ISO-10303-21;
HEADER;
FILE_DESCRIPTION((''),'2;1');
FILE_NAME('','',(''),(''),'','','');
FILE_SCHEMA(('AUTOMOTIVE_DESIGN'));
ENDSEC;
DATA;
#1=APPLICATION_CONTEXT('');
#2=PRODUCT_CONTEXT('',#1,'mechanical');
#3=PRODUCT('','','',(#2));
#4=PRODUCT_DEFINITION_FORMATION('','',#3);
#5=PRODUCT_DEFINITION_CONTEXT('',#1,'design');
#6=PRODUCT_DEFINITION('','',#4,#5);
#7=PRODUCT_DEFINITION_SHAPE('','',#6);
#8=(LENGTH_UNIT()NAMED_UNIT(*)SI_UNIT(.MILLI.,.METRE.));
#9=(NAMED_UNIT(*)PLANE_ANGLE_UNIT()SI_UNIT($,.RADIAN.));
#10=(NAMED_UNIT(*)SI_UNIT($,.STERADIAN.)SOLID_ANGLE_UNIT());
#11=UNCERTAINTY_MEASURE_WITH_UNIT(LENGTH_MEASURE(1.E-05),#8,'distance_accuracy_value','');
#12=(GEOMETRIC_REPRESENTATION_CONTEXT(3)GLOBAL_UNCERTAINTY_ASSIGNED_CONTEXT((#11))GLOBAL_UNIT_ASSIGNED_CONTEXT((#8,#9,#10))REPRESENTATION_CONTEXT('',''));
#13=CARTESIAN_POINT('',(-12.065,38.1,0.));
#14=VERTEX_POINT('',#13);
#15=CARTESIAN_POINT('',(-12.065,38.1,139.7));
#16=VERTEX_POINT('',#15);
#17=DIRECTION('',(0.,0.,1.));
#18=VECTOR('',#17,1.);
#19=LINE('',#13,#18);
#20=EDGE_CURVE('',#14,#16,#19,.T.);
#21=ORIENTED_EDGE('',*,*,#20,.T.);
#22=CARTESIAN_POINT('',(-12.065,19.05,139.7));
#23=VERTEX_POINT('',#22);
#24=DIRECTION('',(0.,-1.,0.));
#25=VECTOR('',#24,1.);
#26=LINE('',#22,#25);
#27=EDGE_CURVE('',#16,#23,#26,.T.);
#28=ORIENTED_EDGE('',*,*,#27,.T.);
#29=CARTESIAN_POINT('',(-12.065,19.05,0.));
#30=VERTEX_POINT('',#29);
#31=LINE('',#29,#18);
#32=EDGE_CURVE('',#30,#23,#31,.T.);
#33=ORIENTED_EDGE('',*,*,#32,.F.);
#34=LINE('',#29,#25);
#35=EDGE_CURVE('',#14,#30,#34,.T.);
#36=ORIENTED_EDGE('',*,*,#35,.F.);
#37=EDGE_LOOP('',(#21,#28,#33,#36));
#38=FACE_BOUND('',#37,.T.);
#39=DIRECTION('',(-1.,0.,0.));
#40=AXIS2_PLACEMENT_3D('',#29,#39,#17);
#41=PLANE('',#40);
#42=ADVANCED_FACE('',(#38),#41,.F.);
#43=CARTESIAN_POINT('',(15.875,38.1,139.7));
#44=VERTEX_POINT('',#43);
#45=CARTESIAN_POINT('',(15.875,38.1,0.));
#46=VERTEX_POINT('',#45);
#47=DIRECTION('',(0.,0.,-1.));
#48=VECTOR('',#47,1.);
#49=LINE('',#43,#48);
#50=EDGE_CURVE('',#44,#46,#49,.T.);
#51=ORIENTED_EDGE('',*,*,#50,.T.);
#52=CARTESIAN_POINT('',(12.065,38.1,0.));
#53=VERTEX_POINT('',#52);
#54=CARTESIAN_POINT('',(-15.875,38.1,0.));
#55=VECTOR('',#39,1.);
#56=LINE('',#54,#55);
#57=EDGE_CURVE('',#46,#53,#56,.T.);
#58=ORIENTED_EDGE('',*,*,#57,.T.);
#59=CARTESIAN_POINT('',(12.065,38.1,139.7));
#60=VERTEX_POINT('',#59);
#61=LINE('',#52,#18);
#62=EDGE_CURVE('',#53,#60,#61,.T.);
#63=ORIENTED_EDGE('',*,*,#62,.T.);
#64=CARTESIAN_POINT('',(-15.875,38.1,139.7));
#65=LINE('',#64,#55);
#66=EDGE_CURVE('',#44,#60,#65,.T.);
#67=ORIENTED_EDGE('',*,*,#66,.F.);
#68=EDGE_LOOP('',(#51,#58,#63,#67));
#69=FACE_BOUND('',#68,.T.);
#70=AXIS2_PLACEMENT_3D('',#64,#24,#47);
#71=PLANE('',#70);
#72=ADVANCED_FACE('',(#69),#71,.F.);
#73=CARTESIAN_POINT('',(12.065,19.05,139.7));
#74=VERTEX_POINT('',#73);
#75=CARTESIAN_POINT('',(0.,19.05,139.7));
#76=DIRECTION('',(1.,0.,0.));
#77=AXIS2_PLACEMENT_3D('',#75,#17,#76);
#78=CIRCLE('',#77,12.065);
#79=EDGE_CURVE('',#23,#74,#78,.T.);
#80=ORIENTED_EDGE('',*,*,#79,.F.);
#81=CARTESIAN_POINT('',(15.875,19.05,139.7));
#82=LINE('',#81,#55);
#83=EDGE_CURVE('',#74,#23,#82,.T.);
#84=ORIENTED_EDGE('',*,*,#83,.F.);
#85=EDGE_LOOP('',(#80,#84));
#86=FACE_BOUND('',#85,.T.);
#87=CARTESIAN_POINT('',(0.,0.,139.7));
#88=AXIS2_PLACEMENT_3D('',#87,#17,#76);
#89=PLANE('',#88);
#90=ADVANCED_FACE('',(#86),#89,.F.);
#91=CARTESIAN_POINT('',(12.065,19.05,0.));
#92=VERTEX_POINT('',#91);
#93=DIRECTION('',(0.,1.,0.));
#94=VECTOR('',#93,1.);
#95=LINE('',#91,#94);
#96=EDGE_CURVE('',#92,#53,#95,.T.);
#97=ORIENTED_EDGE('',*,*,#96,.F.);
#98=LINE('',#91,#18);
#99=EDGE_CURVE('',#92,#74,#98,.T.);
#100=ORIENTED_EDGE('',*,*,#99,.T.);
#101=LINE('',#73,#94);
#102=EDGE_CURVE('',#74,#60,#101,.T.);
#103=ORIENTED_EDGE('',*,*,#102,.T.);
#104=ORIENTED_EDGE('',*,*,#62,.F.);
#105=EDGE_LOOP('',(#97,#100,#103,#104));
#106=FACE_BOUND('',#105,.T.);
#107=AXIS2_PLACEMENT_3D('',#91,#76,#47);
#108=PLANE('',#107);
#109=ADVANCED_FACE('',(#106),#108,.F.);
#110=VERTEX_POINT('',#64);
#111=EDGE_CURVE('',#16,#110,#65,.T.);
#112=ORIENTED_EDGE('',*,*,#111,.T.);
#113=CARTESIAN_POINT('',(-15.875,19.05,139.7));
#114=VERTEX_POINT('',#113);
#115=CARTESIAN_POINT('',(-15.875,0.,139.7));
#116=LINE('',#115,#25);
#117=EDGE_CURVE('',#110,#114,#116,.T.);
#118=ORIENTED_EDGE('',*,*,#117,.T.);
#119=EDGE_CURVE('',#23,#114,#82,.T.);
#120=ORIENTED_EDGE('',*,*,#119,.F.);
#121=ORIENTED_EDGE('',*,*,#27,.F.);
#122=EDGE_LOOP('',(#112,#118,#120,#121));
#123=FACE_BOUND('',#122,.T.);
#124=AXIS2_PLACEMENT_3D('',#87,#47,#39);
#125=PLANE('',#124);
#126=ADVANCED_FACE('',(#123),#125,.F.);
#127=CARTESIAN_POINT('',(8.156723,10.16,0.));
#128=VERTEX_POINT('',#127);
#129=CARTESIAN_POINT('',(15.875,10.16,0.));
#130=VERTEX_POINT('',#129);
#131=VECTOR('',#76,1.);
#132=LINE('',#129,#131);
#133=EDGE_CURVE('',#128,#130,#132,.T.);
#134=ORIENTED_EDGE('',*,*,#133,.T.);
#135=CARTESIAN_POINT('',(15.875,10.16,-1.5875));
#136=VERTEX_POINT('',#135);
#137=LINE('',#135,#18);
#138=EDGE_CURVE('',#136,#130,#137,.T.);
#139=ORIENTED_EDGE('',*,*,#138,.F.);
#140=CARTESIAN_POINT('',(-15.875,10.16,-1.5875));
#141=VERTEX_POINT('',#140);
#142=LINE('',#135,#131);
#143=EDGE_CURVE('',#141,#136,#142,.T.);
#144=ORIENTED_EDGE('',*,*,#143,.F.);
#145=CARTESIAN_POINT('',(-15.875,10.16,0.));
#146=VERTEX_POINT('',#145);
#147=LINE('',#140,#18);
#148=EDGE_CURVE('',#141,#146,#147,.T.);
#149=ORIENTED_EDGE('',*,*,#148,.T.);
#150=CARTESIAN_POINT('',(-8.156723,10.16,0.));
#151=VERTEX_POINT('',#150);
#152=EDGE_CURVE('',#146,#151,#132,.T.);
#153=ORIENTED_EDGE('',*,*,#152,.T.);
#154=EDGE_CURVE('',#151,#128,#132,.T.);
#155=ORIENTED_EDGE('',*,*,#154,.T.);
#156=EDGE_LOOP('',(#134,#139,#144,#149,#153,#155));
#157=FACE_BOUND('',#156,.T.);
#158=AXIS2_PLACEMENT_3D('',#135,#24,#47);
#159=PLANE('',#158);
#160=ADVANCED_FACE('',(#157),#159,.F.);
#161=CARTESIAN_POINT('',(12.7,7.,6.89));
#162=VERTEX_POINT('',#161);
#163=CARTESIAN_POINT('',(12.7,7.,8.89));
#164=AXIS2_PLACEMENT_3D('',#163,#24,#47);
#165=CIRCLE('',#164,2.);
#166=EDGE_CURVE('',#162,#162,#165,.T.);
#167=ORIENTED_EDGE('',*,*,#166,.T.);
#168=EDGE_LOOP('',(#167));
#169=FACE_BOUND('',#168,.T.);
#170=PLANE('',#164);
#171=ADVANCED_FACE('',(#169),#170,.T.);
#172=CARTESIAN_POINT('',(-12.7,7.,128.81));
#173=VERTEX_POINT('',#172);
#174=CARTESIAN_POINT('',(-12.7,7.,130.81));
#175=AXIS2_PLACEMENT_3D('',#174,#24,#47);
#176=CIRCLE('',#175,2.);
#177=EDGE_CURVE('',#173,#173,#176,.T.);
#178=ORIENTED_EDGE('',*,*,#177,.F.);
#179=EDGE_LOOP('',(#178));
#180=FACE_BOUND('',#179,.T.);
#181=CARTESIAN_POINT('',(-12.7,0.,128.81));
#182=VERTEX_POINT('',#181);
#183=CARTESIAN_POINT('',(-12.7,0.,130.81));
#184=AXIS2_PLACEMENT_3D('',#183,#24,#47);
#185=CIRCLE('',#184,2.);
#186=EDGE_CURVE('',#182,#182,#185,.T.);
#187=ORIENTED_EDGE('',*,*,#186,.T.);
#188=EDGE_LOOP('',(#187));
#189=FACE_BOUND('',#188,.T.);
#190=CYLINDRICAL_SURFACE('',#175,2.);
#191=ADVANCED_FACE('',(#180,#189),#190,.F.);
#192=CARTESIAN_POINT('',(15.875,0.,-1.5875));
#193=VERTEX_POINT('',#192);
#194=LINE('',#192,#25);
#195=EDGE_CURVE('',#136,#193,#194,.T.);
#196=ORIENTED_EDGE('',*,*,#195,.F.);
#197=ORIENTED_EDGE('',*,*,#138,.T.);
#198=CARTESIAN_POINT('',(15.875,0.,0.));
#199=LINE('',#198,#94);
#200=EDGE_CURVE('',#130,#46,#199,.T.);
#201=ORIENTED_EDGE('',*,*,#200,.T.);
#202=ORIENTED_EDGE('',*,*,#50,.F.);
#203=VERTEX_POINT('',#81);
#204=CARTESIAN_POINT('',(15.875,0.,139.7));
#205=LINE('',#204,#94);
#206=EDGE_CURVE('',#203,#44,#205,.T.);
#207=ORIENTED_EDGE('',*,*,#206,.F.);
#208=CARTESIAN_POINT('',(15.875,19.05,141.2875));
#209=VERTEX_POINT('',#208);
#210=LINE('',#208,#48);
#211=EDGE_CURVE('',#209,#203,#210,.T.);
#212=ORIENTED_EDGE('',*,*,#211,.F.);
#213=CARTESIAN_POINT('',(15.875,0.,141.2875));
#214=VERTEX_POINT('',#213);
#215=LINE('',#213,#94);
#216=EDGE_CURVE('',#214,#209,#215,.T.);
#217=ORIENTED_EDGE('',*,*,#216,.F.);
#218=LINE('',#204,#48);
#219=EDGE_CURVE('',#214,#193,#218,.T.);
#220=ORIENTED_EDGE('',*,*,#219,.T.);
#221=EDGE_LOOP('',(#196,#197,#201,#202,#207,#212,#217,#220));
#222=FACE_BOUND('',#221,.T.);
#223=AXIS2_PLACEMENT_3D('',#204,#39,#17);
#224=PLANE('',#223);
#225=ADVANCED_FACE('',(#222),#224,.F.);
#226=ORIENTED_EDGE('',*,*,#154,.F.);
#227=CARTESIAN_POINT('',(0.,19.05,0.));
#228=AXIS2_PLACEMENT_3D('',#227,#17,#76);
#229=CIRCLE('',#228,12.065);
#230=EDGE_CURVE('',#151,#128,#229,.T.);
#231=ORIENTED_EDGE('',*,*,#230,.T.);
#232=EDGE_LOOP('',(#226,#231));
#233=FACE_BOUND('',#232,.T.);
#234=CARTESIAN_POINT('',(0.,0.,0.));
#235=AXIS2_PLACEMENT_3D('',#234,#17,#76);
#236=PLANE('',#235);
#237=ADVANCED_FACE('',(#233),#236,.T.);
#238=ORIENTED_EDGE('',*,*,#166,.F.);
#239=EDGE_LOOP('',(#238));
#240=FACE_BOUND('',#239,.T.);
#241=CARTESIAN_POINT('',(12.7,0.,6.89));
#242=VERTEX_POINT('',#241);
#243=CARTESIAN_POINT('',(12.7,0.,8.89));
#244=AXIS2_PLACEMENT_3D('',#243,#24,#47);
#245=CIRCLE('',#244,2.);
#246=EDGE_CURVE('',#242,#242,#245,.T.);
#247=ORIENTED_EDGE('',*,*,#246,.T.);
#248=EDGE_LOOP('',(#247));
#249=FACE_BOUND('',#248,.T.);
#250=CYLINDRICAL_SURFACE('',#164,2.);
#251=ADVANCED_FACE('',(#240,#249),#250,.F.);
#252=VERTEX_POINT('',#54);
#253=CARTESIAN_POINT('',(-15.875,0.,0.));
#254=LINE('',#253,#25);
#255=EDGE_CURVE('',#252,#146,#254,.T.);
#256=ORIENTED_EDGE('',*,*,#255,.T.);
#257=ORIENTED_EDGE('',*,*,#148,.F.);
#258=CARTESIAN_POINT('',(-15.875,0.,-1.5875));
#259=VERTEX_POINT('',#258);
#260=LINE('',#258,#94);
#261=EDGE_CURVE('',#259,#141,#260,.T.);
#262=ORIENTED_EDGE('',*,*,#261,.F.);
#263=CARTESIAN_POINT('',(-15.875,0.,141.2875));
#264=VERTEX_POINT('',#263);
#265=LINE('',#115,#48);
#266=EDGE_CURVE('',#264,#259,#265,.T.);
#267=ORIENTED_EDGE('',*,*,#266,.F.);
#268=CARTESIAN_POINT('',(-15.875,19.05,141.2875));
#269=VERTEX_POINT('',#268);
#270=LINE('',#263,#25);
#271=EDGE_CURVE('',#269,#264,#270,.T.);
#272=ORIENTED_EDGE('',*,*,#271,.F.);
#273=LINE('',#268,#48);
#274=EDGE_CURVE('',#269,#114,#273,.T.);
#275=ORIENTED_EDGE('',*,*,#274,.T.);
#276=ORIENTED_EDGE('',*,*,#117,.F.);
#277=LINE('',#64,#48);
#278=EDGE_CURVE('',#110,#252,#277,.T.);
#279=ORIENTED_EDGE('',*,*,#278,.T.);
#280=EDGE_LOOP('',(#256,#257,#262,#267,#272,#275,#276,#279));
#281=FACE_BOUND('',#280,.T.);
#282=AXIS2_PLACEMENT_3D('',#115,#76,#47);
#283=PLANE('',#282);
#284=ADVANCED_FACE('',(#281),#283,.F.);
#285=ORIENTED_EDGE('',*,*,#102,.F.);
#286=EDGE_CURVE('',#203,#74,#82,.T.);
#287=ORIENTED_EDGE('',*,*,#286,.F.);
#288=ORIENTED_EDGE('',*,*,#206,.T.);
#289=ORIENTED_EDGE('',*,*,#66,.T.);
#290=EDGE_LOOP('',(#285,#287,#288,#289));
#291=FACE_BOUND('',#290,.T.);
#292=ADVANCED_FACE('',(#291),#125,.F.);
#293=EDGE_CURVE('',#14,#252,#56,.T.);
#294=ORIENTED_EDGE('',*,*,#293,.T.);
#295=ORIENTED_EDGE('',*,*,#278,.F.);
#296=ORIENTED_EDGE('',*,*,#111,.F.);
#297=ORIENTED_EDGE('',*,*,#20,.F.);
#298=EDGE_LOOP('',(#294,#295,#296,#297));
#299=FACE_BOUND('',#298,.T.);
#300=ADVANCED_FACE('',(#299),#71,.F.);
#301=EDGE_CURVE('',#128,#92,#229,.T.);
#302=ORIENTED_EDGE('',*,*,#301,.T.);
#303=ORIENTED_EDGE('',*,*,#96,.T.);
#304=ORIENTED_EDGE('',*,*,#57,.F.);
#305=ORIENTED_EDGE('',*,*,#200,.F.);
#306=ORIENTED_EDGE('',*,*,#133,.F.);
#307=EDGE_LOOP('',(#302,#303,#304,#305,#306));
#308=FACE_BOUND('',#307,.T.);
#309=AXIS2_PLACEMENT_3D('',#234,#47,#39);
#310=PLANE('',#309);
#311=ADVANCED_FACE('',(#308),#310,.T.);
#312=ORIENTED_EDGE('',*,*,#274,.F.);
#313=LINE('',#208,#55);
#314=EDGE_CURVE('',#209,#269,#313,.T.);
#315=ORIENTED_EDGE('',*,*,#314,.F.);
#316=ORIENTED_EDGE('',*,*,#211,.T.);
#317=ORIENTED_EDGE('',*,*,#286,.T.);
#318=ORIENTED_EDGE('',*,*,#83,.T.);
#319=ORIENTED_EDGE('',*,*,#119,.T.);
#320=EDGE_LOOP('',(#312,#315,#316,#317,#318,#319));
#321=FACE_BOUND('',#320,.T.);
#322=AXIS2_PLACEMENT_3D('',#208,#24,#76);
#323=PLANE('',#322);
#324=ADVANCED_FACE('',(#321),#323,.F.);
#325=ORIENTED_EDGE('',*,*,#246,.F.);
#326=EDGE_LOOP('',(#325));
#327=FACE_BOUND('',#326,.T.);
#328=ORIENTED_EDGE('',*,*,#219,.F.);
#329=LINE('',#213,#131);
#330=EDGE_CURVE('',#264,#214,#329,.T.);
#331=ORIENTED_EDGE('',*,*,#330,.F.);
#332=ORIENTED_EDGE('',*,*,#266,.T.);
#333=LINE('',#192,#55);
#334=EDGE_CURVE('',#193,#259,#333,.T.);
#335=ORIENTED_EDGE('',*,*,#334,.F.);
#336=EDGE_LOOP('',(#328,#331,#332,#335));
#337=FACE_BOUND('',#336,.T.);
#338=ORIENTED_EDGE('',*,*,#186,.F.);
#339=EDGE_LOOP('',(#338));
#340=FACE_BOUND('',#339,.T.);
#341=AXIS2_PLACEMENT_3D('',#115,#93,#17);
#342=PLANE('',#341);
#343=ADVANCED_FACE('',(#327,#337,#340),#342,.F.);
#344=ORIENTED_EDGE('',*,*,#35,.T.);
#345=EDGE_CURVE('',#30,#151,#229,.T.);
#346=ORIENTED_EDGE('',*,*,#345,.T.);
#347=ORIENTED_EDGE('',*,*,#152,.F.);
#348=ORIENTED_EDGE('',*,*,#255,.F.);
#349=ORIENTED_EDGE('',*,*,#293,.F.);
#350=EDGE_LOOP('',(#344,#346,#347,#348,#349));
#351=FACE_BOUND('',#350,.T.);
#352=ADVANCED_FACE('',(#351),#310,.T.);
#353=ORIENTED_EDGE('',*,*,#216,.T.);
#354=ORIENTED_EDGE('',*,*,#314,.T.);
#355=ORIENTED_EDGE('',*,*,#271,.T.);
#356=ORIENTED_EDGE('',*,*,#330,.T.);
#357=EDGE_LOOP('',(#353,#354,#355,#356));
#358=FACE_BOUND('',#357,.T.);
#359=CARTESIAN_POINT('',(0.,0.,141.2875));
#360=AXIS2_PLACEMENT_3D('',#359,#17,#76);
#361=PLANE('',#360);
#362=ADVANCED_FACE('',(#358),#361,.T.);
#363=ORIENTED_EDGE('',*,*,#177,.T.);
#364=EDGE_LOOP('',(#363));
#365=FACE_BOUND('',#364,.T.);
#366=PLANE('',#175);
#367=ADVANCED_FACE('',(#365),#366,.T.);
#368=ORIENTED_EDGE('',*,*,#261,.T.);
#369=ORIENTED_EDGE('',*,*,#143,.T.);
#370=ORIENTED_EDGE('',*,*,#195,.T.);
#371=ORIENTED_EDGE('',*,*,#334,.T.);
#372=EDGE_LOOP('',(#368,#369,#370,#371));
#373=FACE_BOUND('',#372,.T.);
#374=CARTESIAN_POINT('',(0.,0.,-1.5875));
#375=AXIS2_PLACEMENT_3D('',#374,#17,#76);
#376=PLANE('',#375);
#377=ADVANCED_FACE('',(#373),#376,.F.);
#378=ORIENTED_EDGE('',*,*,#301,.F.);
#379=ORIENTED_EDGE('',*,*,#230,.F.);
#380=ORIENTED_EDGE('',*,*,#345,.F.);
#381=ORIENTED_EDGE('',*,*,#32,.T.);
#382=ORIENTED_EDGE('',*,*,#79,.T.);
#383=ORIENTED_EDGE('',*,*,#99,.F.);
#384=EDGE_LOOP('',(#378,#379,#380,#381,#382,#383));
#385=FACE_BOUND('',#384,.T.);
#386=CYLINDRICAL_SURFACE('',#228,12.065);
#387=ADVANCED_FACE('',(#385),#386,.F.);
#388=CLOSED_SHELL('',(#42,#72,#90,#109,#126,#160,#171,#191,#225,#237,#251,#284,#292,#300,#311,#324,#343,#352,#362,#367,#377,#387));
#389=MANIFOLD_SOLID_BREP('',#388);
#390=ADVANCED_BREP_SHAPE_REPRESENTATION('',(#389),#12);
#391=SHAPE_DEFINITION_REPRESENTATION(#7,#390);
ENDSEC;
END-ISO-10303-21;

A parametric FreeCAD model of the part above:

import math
import FreeCAD as App
import Part
import Sketcher
Q = App.Units.Quantity

doc = App.newDocument("Part")
params = doc.addObject("Spreadsheet::Sheet", "Params")
for row, (alias, value) in enumerate([
    ("sketch1_height", "1.5 in"),
    ("sketch1_width", "1.25 in"),
    ("pad1_length", "5.5 in"),
    ("sketch2_radius", "0.475 in"),
    ("sketch2_height", "0.75 in"),
    ("pocket2_length", "7 mm"),
    ("sketch4_width", "1.25 in"),
    ("sketch4_height", "0.75 in"),
    ("pad2_length", "0.0625 in"),
    ("sketch5_height", "0.4 in"),
    ("sketch5_width", "1.25 in"),
    ("pad3_length", "0.0625 in"),
], start=1):
    params.set(f"A{row}", alias)
    params.set(f"B{row}", "=" + value)
    params.setAlias(f"B{row}", alias)

body = doc.addObject("PartDesign::Body", "Body")

sketch1 = body.newObject("Sketcher::SketchObject", "Sketch")
sketch1.AttachmentSupport = (doc.getObject("XY_Plane"), [""])
sketch1.MapMode = "FlatFace"
sketch1.addGeometry(Part.LineSegment(App.Vector(-16, 38, 0), App.Vector(-16, 0, 0)), False)
sketch1.addGeometry(Part.LineSegment(App.Vector(-16, 0, 0), App.Vector(16, 0, 0)), False)
sketch1.addGeometry(Part.LineSegment(App.Vector(16, 0, 0), App.Vector(16, 38, 0)), False)
sketch1.addGeometry(Part.LineSegment(App.Vector(16, 38, 0), App.Vector(-16, 38, 0)), False)
sketch1.addConstraint(Sketcher.Constraint("Coincident", 0, 2, 1, 1))
sketch1.addConstraint(Sketcher.Constraint("Coincident", 1, 2, 2, 1))
sketch1.addConstraint(Sketcher.Constraint("Coincident", 2, 2, 3, 1))
sketch1.addConstraint(Sketcher.Constraint("Coincident", 3, 2, 0, 1))
sketch1.addConstraint(Sketcher.Constraint("Vertical", 0))
sketch1.addConstraint(Sketcher.Constraint("Horizontal", 1))
sketch1.addConstraint(Sketcher.Constraint("Vertical", 2))
sketch1.addConstraint(Sketcher.Constraint("Horizontal", 3))
sketch1.addConstraint(Sketcher.Constraint("Symmetric", 0, 2, 1, 2, -1, 1))
sketch1.addConstraint(Sketcher.Constraint("DistanceY", 0, 2, 0, 1, Q("1.5 in")))
sketch1.addConstraint(Sketcher.Constraint("DistanceX", 1, 1, 1, 2, Q("1.25 in")))
sketch1.setExpression("Constraints[9]", "Params.sketch1_height")
sketch1.setExpression("Constraints[10]", "Params.sketch1_width")
pad1 = body.newObject("PartDesign::Pad", "Pad")
pad1.Profile = sketch1
pad1.setExpression("Length", "Params.pad1_length")

sketch2 = body.newObject("Sketcher::SketchObject", "Sketch001")
sketch2.AttachmentSupport = (doc.getObject("XY_Plane"), [""])
sketch2.MapMode = "FlatFace"
sketch2.AttachmentOffset = App.Placement(App.Vector(0, 0, 5.5 * 25.4), App.Rotation())
sketch2.addGeometry(Part.LineSegment(App.Vector(-12, 38, 0), App.Vector(-12, 19, 0)), False)
sketch2.addGeometry(Part.ArcOfCircle(Part.Circle(App.Vector(0, 19, 0), App.Vector(0, 0, 1), 12), math.radians(180), math.radians(360)), False)
sketch2.addGeometry(Part.LineSegment(App.Vector(12, 19, 0), App.Vector(12, 38, 0)), False)
sketch2.addGeometry(Part.LineSegment(App.Vector(12, 38, 0), App.Vector(-12, 38, 0)), False)
sketch2.addConstraint(Sketcher.Constraint("Tangent", 0, 2, 1, 1))
sketch2.addConstraint(Sketcher.Constraint("Tangent", 1, 2, 2, 1))
sketch2.addConstraint(Sketcher.Constraint("Coincident", 2, 2, 3, 1))
sketch2.addConstraint(Sketcher.Constraint("Coincident", 3, 2, 0, 1))
sketch2.addConstraint(Sketcher.Constraint("Vertical", 0))
sketch2.addConstraint(Sketcher.Constraint("Vertical", 2))
sketch2.addConstraint(Sketcher.Constraint("Horizontal", 3))
sketch2.addConstraint(Sketcher.Constraint("PointOnObject", 1, 3, -2))
sketch2.addConstraint(Sketcher.Constraint("Radius", 1, Q("0.475 in")))
sketch2.addConstraint(Sketcher.Constraint("DistanceY", 0, 2, 0, 1, Q("0.75 in")))
sketch2.addConstraint(Sketcher.Constraint("DistanceY", -1, 1, 2, 2, Q("1.5 in")))
sketch2.setExpression("Constraints[8]", "Params.sketch2_radius")
sketch2.setExpression("Constraints[9]", "Params.sketch2_height")
pocket1 = body.newObject("PartDesign::Pocket", "Pocket")
pocket1.Profile = sketch2
pocket1.Type = "ThroughAll"

sketch3 = body.newObject("Sketcher::SketchObject", "Sketch002")
sketch3.AttachmentSupport = (doc.getObject("XZ_Plane"), [""])
sketch3.MapMode = "FlatFace"
sketch3.addGeometry(Part.Circle(App.Vector(-12.7, 130.8, 0), App.Vector(0, 0, 1), 2), False)
sketch3.addGeometry(Part.Circle(App.Vector(12.7, 8.9, 0), App.Vector(0, 0, 1), 2), False)
sketch3.addConstraint(Sketcher.Constraint("Equal", 0, 1))
sketch3.addConstraint(Sketcher.Constraint("DistanceX", 0, 3, 1, 3, Q("1 in")))
sketch3.addConstraint(Sketcher.Constraint("DistanceX", 0, 3, -1, 1, Q("0.5 in")))
sketch3.addConstraint(Sketcher.Constraint("DistanceY", 1, 3, 0, 3, Q("4.8 in")))
sketch3.addConstraint(Sketcher.Constraint("Diameter", 0, 4.0))
sketch3.addConstraint(Sketcher.Constraint("DistanceY", -1, 1, 0, 3, Q("5.15 in")))
pocket2 = body.newObject("PartDesign::Pocket", "Pocket001")
pocket2.Profile = sketch3
pocket2.setExpression("Length", "Params.pocket2_length")

sketch4 = body.newObject("Sketcher::SketchObject", "Sketch003")
sketch4.AttachmentSupport = (doc.getObject("XY_Plane"), [""])
sketch4.MapMode = "FlatFace"
sketch4.AttachmentOffset = App.Placement(App.Vector(0, 0, 5.5 * 25.4), App.Rotation())
sketch4.addGeometry(Part.LineSegment(App.Vector(-16, 19, 0), App.Vector(-16, 0, 0)), False)
sketch4.addGeometry(Part.LineSegment(App.Vector(-16, 0, 0), App.Vector(16, 0, 0)), False)
sketch4.addGeometry(Part.LineSegment(App.Vector(16, 0, 0), App.Vector(16, 19, 0)), False)
sketch4.addGeometry(Part.LineSegment(App.Vector(16, 19, 0), App.Vector(-16, 19, 0)), False)
sketch4.addConstraint(Sketcher.Constraint("Coincident", 0, 2, 1, 1))
sketch4.addConstraint(Sketcher.Constraint("Coincident", 1, 2, 2, 1))
sketch4.addConstraint(Sketcher.Constraint("Coincident", 2, 2, 3, 1))
sketch4.addConstraint(Sketcher.Constraint("Coincident", 3, 2, 0, 1))
sketch4.addConstraint(Sketcher.Constraint("Vertical", 0))
sketch4.addConstraint(Sketcher.Constraint("Horizontal", 1))
sketch4.addConstraint(Sketcher.Constraint("Vertical", 2))
sketch4.addConstraint(Sketcher.Constraint("Horizontal", 3))
sketch4.addConstraint(Sketcher.Constraint("Symmetric", 0, 2, 1, 2, -1, 1))
sketch4.addConstraint(Sketcher.Constraint("DistanceX", 1, 1, 1, 2, Q("1.25 in")))
sketch4.addConstraint(Sketcher.Constraint("DistanceY", 0, 2, 0, 1, Q("0.75 in")))
sketch4.setExpression("Constraints[9]", "Params.sketch4_width")
sketch4.setExpression("Constraints[10]", "Params.sketch4_height")
pad2 = body.newObject("PartDesign::Pad", "Pad001")
pad2.Profile = sketch4
pad2.setExpression("Length", "Params.pad2_length")

sketch5 = body.newObject("Sketcher::SketchObject", "Sketch004")
sketch5.AttachmentSupport = (doc.getObject("XY_Plane"), [""])
sketch5.MapMode = "FlatFace"
sketch5.addGeometry(Part.LineSegment(App.Vector(16, 10, 0), App.Vector(16, 0, 0)), False)
sketch5.addGeometry(Part.LineSegment(App.Vector(16, 0, 0), App.Vector(-16, 0, 0)), False)
sketch5.addGeometry(Part.LineSegment(App.Vector(-16, 0, 0), App.Vector(-16, 10, 0)), False)
sketch5.addGeometry(Part.LineSegment(App.Vector(-16, 10, 0), App.Vector(16, 10, 0)), False)
sketch5.addConstraint(Sketcher.Constraint("Coincident", 0, 2, 1, 1))
sketch5.addConstraint(Sketcher.Constraint("Coincident", 1, 2, 2, 1))
sketch5.addConstraint(Sketcher.Constraint("Coincident", 2, 2, 3, 1))
sketch5.addConstraint(Sketcher.Constraint("Coincident", 3, 2, 0, 1))
sketch5.addConstraint(Sketcher.Constraint("Vertical", 0))
sketch5.addConstraint(Sketcher.Constraint("Horizontal", 1))
sketch5.addConstraint(Sketcher.Constraint("Vertical", 2))
sketch5.addConstraint(Sketcher.Constraint("Horizontal", 3))
sketch5.addConstraint(Sketcher.Constraint("Symmetric", 0, 2, 1, 2, -1, 1))
sketch5.addConstraint(Sketcher.Constraint("DistanceY", 0, 2, 0, 1, Q("0.4 in")))
sketch5.addConstraint(Sketcher.Constraint("DistanceX", 1, 2, 1, 1, Q("1.25 in")))
sketch5.setExpression("Constraints[9]", "Params.sketch5_height")
sketch5.setExpression("Constraints[10]", "Params.sketch5_width")
pad3 = body.newObject("PartDesign::Pad", "Pad002")
pad3.Profile = sketch5
pad3.setExpression("Length", "Params.pad3_length")
pad3.Reversed = True

doc.recompute()
